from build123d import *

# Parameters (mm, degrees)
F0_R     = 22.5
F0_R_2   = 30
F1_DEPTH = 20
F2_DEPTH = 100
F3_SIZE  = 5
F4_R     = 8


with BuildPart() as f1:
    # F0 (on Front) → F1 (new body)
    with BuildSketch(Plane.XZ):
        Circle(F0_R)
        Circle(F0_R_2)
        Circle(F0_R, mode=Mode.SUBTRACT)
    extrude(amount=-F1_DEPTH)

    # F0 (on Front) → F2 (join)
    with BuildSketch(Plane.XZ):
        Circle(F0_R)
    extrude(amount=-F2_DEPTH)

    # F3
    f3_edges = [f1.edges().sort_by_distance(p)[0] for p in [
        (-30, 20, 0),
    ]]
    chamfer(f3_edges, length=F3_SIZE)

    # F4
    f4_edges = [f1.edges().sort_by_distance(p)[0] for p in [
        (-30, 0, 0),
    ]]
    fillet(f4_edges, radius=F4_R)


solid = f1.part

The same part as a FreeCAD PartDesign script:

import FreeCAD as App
import Part
import Sketcher

V = App.Vector


def edges_at(feature, points):
    """Names of the edges that pass closest to the given points."""
    edges = feature.Shape.Edges
    near = lambda p: min(range(len(edges)), key=lambda i: edges[i].distToShape(Part.Vertex(*p))[0])
    return sorted({f"Edge{near(p) + 1}" for p in points})

doc = App.newDocument("Part")
body = doc.addObject("PartDesign::Body", "Body")

# Sketch on XZ plane
sketch1 = body.newObject("Sketcher::SketchObject", "Sketch")
sketch1.AttachmentSupport = (doc.getObject("XZ_Plane"), [""])
sketch1.MapMode = "FlatFace"
sketch1.addGeometry([
    Part.Circle(V(0, 0, 0), V(0, 0, 1), 30),
    Part.Circle(V(0, 0, 0), V(0, 0, 1), 22),
], False)
sketch1.addConstraint([
    Sketcher.Constraint("Coincident", 0, 3, -1, 1),
    Sketcher.Constraint("Coincident", 1, 3, -1, 1),
    Sketcher.Constraint("Diameter", 0, 60.0),
    Sketcher.Constraint("Diameter", 1, 45.0),
])
pad1 = body.newObject("PartDesign::Pad", "Pad")
pad1.Profile = sketch1
pad1.Length = 20
pad1.Reversed = True

# Sketch on XZ plane
sketch2 = body.newObject("Sketcher::SketchObject", "Sketch001")
sketch2.AttachmentSupport = (doc.getObject("XZ_Plane"), [""])
sketch2.MapMode = "FlatFace"
sketch2.addGeometry(Part.Circle(V(0, 0, 0), V(0, 0, 1), 22), False)
sketch2.addConstraint([
    Sketcher.Constraint("Coincident", 0, 3, -1, 1),
    Sketcher.Constraint("Diameter", 0, 45.0),
])
pad2 = body.newObject("PartDesign::Pad", "Pad001")
pad2.Profile = sketch2
pad2.Length = 100
pad2.Reversed = True
doc.recompute()

chamfer = body.newObject("PartDesign::Chamfer", "Chamfer")
chamfer.Base = (pad2, edges_at(pad2, [(-30, 20, 0)]))
chamfer.Size = 5
doc.recompute()

fillet = body.newObject("PartDesign::Fillet", "Fillet")
fillet.Base = (chamfer, edges_at(chamfer, [(-30, 0, 0)]))
fillet.Radius = 8

doc.recompute()
